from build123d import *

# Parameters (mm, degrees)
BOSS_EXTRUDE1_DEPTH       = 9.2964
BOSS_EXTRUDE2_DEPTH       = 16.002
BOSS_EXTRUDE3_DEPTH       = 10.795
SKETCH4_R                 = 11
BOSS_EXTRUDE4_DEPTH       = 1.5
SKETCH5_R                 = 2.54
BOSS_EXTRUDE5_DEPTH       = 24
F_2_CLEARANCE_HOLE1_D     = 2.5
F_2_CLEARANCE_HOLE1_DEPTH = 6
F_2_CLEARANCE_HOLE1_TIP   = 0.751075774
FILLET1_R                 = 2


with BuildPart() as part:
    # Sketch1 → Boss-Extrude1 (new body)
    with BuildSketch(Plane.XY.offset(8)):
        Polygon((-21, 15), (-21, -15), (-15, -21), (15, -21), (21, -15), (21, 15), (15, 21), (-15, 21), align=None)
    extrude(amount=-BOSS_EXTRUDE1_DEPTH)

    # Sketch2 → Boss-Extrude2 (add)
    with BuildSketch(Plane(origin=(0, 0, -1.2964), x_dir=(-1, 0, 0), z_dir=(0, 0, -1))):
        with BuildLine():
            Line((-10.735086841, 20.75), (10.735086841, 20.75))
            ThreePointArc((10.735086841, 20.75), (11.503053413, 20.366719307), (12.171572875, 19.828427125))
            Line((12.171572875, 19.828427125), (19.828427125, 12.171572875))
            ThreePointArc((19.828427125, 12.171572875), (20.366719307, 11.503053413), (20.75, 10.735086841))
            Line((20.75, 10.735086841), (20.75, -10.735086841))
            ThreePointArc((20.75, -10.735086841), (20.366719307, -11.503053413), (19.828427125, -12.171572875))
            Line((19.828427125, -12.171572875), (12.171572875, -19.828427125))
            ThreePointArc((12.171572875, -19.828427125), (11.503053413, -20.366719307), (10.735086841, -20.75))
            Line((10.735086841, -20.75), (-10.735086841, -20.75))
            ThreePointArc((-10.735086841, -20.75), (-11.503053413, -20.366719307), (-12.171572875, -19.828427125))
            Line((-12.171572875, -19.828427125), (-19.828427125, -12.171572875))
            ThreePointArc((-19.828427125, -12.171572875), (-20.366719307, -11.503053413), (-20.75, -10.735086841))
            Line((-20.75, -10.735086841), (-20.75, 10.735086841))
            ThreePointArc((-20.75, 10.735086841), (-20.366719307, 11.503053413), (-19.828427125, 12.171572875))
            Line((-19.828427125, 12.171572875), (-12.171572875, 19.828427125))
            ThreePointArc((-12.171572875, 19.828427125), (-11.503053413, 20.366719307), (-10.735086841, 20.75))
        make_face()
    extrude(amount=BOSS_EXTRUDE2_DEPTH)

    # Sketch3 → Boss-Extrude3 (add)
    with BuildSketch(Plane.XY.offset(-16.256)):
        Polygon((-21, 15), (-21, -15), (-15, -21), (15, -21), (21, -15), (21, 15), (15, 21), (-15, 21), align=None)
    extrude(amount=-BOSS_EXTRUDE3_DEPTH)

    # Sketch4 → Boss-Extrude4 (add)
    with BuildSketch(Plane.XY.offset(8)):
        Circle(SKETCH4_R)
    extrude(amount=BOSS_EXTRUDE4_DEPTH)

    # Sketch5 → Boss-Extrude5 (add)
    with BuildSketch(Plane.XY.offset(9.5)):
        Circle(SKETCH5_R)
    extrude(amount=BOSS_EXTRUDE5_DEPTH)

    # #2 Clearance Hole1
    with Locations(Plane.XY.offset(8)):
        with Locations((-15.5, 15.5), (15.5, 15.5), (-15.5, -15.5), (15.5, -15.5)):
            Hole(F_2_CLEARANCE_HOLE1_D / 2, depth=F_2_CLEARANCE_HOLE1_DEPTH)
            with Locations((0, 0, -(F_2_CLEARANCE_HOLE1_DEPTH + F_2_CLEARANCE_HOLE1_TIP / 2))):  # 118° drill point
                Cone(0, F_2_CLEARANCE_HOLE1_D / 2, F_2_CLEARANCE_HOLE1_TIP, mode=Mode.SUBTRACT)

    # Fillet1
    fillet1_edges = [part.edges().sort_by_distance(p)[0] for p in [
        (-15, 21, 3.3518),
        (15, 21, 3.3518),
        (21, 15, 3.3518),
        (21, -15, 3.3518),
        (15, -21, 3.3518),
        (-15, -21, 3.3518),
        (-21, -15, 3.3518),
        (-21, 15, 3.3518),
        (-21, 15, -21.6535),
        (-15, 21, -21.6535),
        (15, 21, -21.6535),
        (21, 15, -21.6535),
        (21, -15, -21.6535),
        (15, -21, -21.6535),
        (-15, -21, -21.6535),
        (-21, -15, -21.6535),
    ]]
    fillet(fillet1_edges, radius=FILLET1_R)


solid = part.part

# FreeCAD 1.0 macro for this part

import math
import FreeCAD as App
import Part
import Sketcher
Q = App.Units.Quantity


def edges_at(feature, points):
    """Names of the edges that pass closest to the given points."""
    edges = feature.Shape.Edges
    near = lambda p: min(range(len(edges)), key=lambda i: edges[i].distToShape(Part.Vertex(*p))[0])
    return sorted({f"Edge{near(p) + 1}" for p in points})


def add_polygon(sketch, points):
    """Adds a closed chain of lines whose ends are joined by coincident constraints."""
    first, n = sketch.GeometryCount, len(points)
    for a, b in zip(points, points[1:] + points[:1]):
        sketch.addGeometry(Part.LineSegment(App.Vector(*a, 0), App.Vector(*b, 0)), False)
    for i in range(n):
        sketch.addConstraint(Sketcher.Constraint("Coincident", first + i, 2, first + (i + 1) % n, 1))

doc = App.newDocument("Part")
params = doc.addObject("Spreadsheet::Sheet", "Params")
for row, (alias, value) in enumerate([
    ("sketch1_width", "30 mm"),
    ("pad1_length", "9.2964 mm"),
    ("sketch2_radius", "4 mm"),
    ("pad2_length", "16.002 mm"),
    ("sketch3_width", "30 mm"),
    ("pad3_length", "10.795 mm"),
    ("sketch4_diameter", "22 mm"),
    ("pad4_length", "1.5 mm"),
    ("sketch5_diameter", "5.08 mm"),
    ("pad5_length", "24 mm"),
    ("sketch6_diameter", "2.5 mm"),
    ("hole_diameter", "2.5 mm"),
    ("hole_depth", "6 mm"),
    ("fillet_radius", "2 mm"),
], start=1):
    params.set(f"A{row}", alias)
    params.set(f"B{row}", "=" + value)
    params.setAlias(f"B{row}", alias)

body = doc.addObject("PartDesign::Body", "Body")

# Sketch on XY plane
sketch1 = body.newObject("Sketcher::SketchObject", "Sketch")
sketch1.AttachmentSupport = (doc.getObject("XY_Plane"), [""])
sketch1.MapMode = "FlatFace"
sketch1.AttachmentOffset = App.Placement(App.Vector(0, 0, 8), App.Rotation())
add_polygon(sketch1, [(-21, 15), (-21, -15), (-15, -21), (15, -21), (21, -15), (21, 15), (15, 21), (-15, 21)])  # lines 0-7
sketch1.addConstraint(Sketcher.Constraint("Vertical", 0))
sketch1.addConstraint(Sketcher.Constraint("Horizontal", 2))
sketch1.addConstraint(Sketcher.Constraint("Vertical", 4))
sketch1.addConstraint(Sketcher.Constraint("Horizontal", 6))
sketch1.addConstraint(Sketcher.Constraint("Symmetric", 0, 2, 4, 2, -1, 1))
sketch1.addConstraint(Sketcher.Constraint("Symmetric", 1, 2, 5, 2, -1, 1))
sketch1.addConstraint(Sketcher.Constraint("Perpendicular", 1, 3))
sketch1.addConstraint(Sketcher.Constraint("Perpendicular", 5, 7))
sketch1.addConstraint(Sketcher.Constraint("Horizontal", 0, 2, 3, 2))
sketch1.addConstraint(Sketcher.Constraint("Horizontal", 4, 2, 7, 2))
sketch1.addConstraint(Sketcher.Constraint("Vertical", 2, 2, 5, 2))
sketch1.addConstraint(Sketcher.Constraint("Equal", 6, 0))
sketch1.addConstraint(Sketcher.Constraint("DistanceX", 2, 1, 2, 2, Q("30 mm")))
sketch1.addConstraint(Sketcher.Constraint("DistanceX", 0, 2, -1, 1, Q("21 mm")))
sketch1.setExpression("Constraints[20]", "Params.sketch1_width")
pad1 = body.newObject("PartDesign::Pad", "Pad")
pad1.Profile = sketch1
pad1.setExpression("Length", "Params.pad1_length")
pad1.Reversed = True

# Sketch on XY plane
sketch2 = body.newObject("Sketcher::SketchObject", "Sketch001")
sketch2.AttachmentSupport = (doc.getObject("XY_Plane"), [""])
sketch2.MapMode = "FlatFace"
sketch2.AttachmentOffset = App.Placement(App.Vector(0, 0, -1.2964), App.Rotation())
sketch2.addGeometry(Part.LineSegment(App.Vector(-10.7, 20.8, 0), App.Vector(10.7, 20.8, 0)), False)
sketch2.addGeometry(Part.ArcOfCircle(Part.Circle(App.Vector(9.3, 17, 0), App.Vector(0, 0, 1), 4), math.radians(45), math.radians(70)), False)
sketch2.addGeometry(Part.LineSegment(App.Vector(12.2, 19.8, 0), App.Vector(19.8, 12.2, 0)), False)
sketch2.addGeometry(Part.ArcOfCircle(Part.Circle(App.Vector(17, 9.3, 0), App.Vector(0, 0, 1), 4), math.radians(20), math.radians(45)), False)
sketch2.addGeometry(Part.LineSegment(App.Vector(20.8, 10.7, 0), App.Vector(20.8, -10.7, 0)), False)
sketch2.addGeometry(Part.ArcOfCircle(Part.Circle(App.Vector(17, -9.3, 0), App.Vector(0, 0, 1), 4), math.radians(-45), math.radians(-20)), False)
sketch2.addGeometry(Part.LineSegment(App.Vector(19.8, -12.2, 0), App.Vector(12.2, -19.8, 0)), False)
sketch2.addGeometry(Part.ArcOfCircle(Part.Circle(App.Vector(9.3, -17, 0), App.Vector(0, 0, 1), 4), math.radians(-70), math.radians(-45)), False)
sketch2.addGeometry(Part.LineSegment(App.Vector(10.7, -20.8, 0), App.Vector(-10.7, -20.8, 0)), False)
sketch2.addGeometry(Part.ArcOfCircle(Part.Circle(App.Vector(-9.3, -17, 0), App.Vector(0, 0, 1), 4), math.radians(-135), math.radians(-110)), False)
sketch2.addGeometry(Part.LineSegment(App.Vector(-12.2, -19.8, 0), App.Vector(-19.8, -12.2, 0)), False)
sketch2.addGeometry(Part.ArcOfCircle(Part.Circle(App.Vector(-17, -9.3, 0), App.Vector(0, 0, 1), 4), math.radians(-160), math.radians(-135)), False)
sketch2.addGeometry(Part.LineSegment(App.Vector(-20.8, -10.7, 0), App.Vector(-20.8, 10.7, 0)), False)
sketch2.addGeometry(Part.ArcOfCircle(Part.Circle(App.Vector(-17, 9.3, 0), App.Vector(0, 0, 1), 4), math.radians(135), math.radians(160)), False)
sketch2.addGeometry(Part.LineSegment(App.Vector(-19.8, 12.2, 0), App.Vector(-12.2, 19.8, 0)), False)
sketch2.addGeometry(Part.ArcOfCircle(Part.Circle(App.Vector(-9.3, 17, 0), App.Vector(0, 0, 1), 4), math.radians(110), math.radians(135)), False)
sketch2.addConstraint(Sketcher.Constraint("Coincident", 0, 2, 1, 2))
sketch2.addConstraint(Sketcher.Constraint("Tangent", 1, 1, 2, 1))
sketch2.addConstraint(Sketcher.Constraint("Tangent", 2, 2, 3, 2))
sketch2.addConstraint(Sketcher.Constraint("Coincident", 3, 1, 4, 1))
sketch2.addConstraint(Sketcher.Constraint("Coincident", 4, 2, 5, 2))
sketch2.addConstraint(Sketcher.Constraint("Tangent", 5, 1, 6, 1))
sketch2.addConstraint(Sketcher.Constraint("Tangent", 6, 2, 7, 2))
sketch2.addConstraint(Sketcher.Constraint("Coincident", 7, 1, 8, 1))
sketch2.addConstraint(Sketcher.Constraint("Coincident", 8, 2, 9, 2))
sketch2.addConstraint(Sketcher.Constraint("Tangent", 9, 1, 10, 1))
sketch2.addConstraint(Sketcher.Constraint("Tangent", 10, 2, 11, 2))
sketch2.addConstraint(Sketcher.Constraint("Coincident", 11, 1, 12, 1))
sketch2.addConstraint(Sketcher.Constraint("Coincident", 12, 2, 13, 2))
sketch2.addConstraint(Sketcher.Constraint("Tangent", 13, 1, 14, 1))
sketch2.addConstraint(Sketcher.Constraint("Tangent", 14, 2, 15, 2))
sketch2.addConstraint(Sketcher.Constraint("Coincident", 15, 1, 0, 1))
sketch2.addConstraint(Sketcher.Constraint("Horizontal", 0))
sketch2.addConstraint(Sketcher.Constraint("Vertical", 4))
sketch2.addConstraint(Sketcher.Constraint("Horizontal", 8))
sketch2.addConstraint(Sketcher.Constraint("Vertical", 12))
sketch2.addConstraint(Sketcher.Constraint("Equal", 1, 3))
sketch2.addConstraint(Sketcher.Constraint("Equal", 3, 5))
sketch2.addConstraint(Sketcher.Constraint("Equal", 5, 7))
sketch2.addConstraint(Sketcher.Constraint("Equal", 7, 9))
sketch2.addConstraint(Sketcher.Constraint("Equal", 9, 11))
sketch2.addConstraint(Sketcher.Constraint("Equal", 11, 13))
sketch2.addConstraint(Sketcher.Constraint("Equal", 13, 15))
sketch2.addConstraint(Sketcher.Constraint("Symmetric", 1, 3, 9, 3, -1, 1))
sketch2.addConstraint(Sketcher.Constraint("Symmetric", 3, 3, 11, 3, -1, 1))
sketch2.addConstraint(Sketcher.Constraint("Symmetric", 5, 3, 13, 3, -1, 1))
sketch2.addConstraint(Sketcher.Constraint("Symmetric", 7, 3, 15, 3, -1, 1))
sketch2.addConstraint(Sketcher.Constraint("Symmetric", 7, 3, 9, 3, -2))
sketch2.addConstraint(Sketcher.Constraint("Symmetric", 5, 3, 11, 3, -2))
sketch2.addConstraint(Sketcher.Constraint("Perpendicular", 2, 6))
sketch2.addConstraint(Sketcher.Constraint("Horizontal", 4, 2, 11, 1))
sketch2.addConstraint(Sketcher.Constraint("Vertical", 0, 2, 7, 1))
sketch2.addConstraint(Sketcher.Constraint("Equal", 8, 4))
sketch2.addConstraint(Sketcher.Constraint("Radius", 1, Q("4 mm")))
sketch2.addConstraint(Sketcher.Constraint("DistanceY", -1, 1, 1, 3, Q("17 mm")))
sketch2.addConstraint(Sketcher.Constraint("DistanceX", -1, 1, 3, 3, Q("17 mm")))
sketch2.addConstraint(Sketcher.Constraint("DistanceY", -1, 1, 0, 2, Q("20.75 mm")))
sketch2.addConstraint(Sketcher.Constraint("DistanceX", 0, 1, 0, 2, Q("21.470174 mm")))
sketch2.setExpression("Constraints[37]", "Params.sketch2_radius")
pad2 = body.newObject("PartDesign::Pad", "Pad001")
pad2.Profile = sketch2
pad2.setExpression("Length", "Params.pad2_length")
pad2.Reversed = True

# Sketch on XY plane
sketch3 = body.newObject("Sketcher::SketchObject", "Sketch002")
sketch3.AttachmentSupport = (doc.getObject("XY_Plane"), [""])
sketch3.MapMode = "FlatFace"
sketch3.AttachmentOffset = App.Placement(App.Vector(0, 0, -16.256), App.Rotation())
add_polygon(sketch3, [(-21, 15), (-21, -15), (-15, -21), (15, -21), (21, -15), (21, 15), (15, 21), (-15, 21)])  # lines 0-7
sketch3.addConstraint(Sketcher.Constraint("Vertical", 0))
sketch3.addConstraint(Sketcher.Constraint("Horizontal", 2))
sketch3.addConstraint(Sketcher.Constraint("Vertical", 4))
sketch3.addConstraint(Sketcher.Constraint("Horizontal", 6))
sketch3.addConstraint(Sketcher.Constraint("Symmetric", 0, 2, 4, 2, -1, 1))
sketch3.addConstraint(Sketcher.Constraint("Symmetric", 1, 2, 5, 2, -1, 1))
sketch3.addConstraint(Sketcher.Constraint("Perpendicular", 1, 3))
sketch3.addConstraint(Sketcher.Constraint("Perpendicular", 5, 7))
sketch3.addConstraint(Sketcher.Constraint("Horizontal", 0, 2, 3, 2))
sketch3.addConstraint(Sketcher.Constraint("Horizontal", 4, 2, 7, 2))
sketch3.addConstraint(Sketcher.Constraint("Vertical", 2, 2, 5, 2))
sketch3.addConstraint(Sketcher.Constraint("Equal", 6, 0))
sketch3.addConstraint(Sketcher.Constraint("DistanceX", 2, 1, 2, 2, Q("30 mm")))
sketch3.addConstraint(Sketcher.Constraint("DistanceX", 0, 2, -1, 1, Q("21 mm")))
sketch3.setExpression("Constraints[20]", "Params.sketch3_width")
pad3 = body.newObject("PartDesign::Pad", "Pad002")
pad3.Profile = sketch3
pad3.setExpression("Length", "Params.pad3_length")
pad3.Reversed = True

# Sketch on XY plane
sketch4 = body.newObject("Sketcher::SketchObject", "Sketch003")
sketch4.AttachmentSupport = (doc.getObject("XY_Plane"), [""])
sketch4.MapMode = "FlatFace"
sketch4.AttachmentOffset = App.Placement(App.Vector(0, 0, 8), App.Rotation())
sketch4.addGeometry(Part.Circle(App.Vector(0, 0, 0), App.Vector(0, 0, 1), 11), False)
sketch4.addConstraint(Sketcher.Constraint("Coincident", 0, 3, -1, 1))
sketch4.addConstraint(Sketcher.Constraint("Diameter", 0, Q("22 mm")))
sketch4.setExpression("Constraints[1]", "Params.sketch4_diameter")
pad4 = body.newObject("PartDesign::Pad", "Pad003")
pad4.Profile = sketch4
pad4.setExpression("Length", "Params.pad4_length")

# Sketch on XY plane
sketch5 = body.newObject("Sketcher::SketchObject", "Sketch004")
sketch5.AttachmentSupport = (doc.getObject("XY_Plane"), [""])
sketch5.MapMode = "FlatFace"
sketch5.AttachmentOffset = App.Placement(App.Vector(0, 0, 9.5), App.Rotation())
sketch5.addGeometry(Part.Circle(App.Vector(0, 0, 0), App.Vector(0, 0, 1), 2.5), False)
sketch5.addConstraint(Sketcher.Constraint("Coincident", 0, 3, -1, 1))
sketch5.addConstraint(Sketcher.Constraint("Diameter", 0, Q("5.08 mm")))
sketch5.setExpression("Constraints[1]", "Params.sketch5_diameter")
pad5 = body.newObject("PartDesign::Pad", "Pad004")
pad5.Profile = sketch5
pad5.setExpression("Length", "Params.pad5_length")

# Sketch on XY plane
sketch6 = body.newObject("Sketcher::SketchObject", "Sketch005")
sketch6.AttachmentSupport = (doc.getObject("XY_Plane"), [""])
sketch6.MapMode = "FlatFace"
sketch6.AttachmentOffset = App.Placement(App.Vector(0, 0, 8), App.Rotation())
sketch6.addGeometry(Part.Circle(App.Vector(-15.5, 15.5, 0), App.Vector(0, 0, 1), 1.2), False)
sketch6.addGeometry(Part.Circle(App.Vector(15.5, 15.5, 0), App.Vector(0, 0, 1), 1.2), False)
sketch6.addGeometry(Part.Circle(App.Vector(-15.5, -15.5, 0), App.Vector(0, 0, 1), 1.2), False)
sketch6.addGeometry(Part.Circle(App.Vector(15.5, -15.5, 0), App.Vector(0, 0, 1), 1.2), False)
sketch6.addConstraint(Sketcher.Constraint("Equal", 0, 1))
sketch6.addConstraint(Sketcher.Constraint("Equal", 1, 2))
sketch6.addConstraint(Sketcher.Constraint("Equal", 2, 3))
sketch6.addConstraint(Sketcher.Constraint("Symmetric", 1, 3, 2, 3, -1, 1))
sketch6.addConstraint(Sketcher.Constraint("Symmetric", 0, 3, 3, 3, -1, 1))
sketch6.addConstraint(Sketcher.Constraint("Symmetric", 0, 3, 1, 3, -2))
sketch6.addConstraint(Sketcher.Constraint("Diameter", 0, Q("2.5 mm")))
sketch6.addConstraint(Sketcher.Constraint("DistanceX", 0, 3, 1, 3, Q("31 mm")))
sketch6.addConstraint(Sketcher.Constraint("DistanceY", 2, 3, 0, 3, Q("31 mm")))
sketch6.setExpression("Constraints[6]", "Params.sketch6_diameter")
doc.recompute()
hole = body.newObject("PartDesign::Hole", "Hole")
hole.Profile = sketch6
hole.ThreadType = "None"
hole.setExpression("Diameter", "Params.hole_diameter")
hole.DepthType = "Dimension"
hole.setExpression("Depth", "Params.hole_depth")
hole.DrillPoint = "Angled"
hole.DrillPointAngle = 118
doc.recompute()

fillet = body.newObject("PartDesign::Fillet", "Fillet")
fillet.Base = (hole, edges_at(hole, [
    (-15, 21, 3.352),
    (15, 21, 3.352),
    (21, 15, 3.352),
    (21, -15, 3.352),
    (15, -21, 3.352),
    (-15, -21, 3.352),
    (-21, -15, 3.352),
    (-21, 15, 3.352),
    (-21, 15, -21.654),
    (-15, 21, -21.654),
    (15, 21, -21.654),
    (21, 15, -21.654),
    (21, -15, -21.654),
    (15, -21, -21.654),
    (-15, -21, -21.654),
    (-21, -15, -21.654),
]))
fillet.setExpression("Radius", "Params.fillet_radius")

doc.recompute()
